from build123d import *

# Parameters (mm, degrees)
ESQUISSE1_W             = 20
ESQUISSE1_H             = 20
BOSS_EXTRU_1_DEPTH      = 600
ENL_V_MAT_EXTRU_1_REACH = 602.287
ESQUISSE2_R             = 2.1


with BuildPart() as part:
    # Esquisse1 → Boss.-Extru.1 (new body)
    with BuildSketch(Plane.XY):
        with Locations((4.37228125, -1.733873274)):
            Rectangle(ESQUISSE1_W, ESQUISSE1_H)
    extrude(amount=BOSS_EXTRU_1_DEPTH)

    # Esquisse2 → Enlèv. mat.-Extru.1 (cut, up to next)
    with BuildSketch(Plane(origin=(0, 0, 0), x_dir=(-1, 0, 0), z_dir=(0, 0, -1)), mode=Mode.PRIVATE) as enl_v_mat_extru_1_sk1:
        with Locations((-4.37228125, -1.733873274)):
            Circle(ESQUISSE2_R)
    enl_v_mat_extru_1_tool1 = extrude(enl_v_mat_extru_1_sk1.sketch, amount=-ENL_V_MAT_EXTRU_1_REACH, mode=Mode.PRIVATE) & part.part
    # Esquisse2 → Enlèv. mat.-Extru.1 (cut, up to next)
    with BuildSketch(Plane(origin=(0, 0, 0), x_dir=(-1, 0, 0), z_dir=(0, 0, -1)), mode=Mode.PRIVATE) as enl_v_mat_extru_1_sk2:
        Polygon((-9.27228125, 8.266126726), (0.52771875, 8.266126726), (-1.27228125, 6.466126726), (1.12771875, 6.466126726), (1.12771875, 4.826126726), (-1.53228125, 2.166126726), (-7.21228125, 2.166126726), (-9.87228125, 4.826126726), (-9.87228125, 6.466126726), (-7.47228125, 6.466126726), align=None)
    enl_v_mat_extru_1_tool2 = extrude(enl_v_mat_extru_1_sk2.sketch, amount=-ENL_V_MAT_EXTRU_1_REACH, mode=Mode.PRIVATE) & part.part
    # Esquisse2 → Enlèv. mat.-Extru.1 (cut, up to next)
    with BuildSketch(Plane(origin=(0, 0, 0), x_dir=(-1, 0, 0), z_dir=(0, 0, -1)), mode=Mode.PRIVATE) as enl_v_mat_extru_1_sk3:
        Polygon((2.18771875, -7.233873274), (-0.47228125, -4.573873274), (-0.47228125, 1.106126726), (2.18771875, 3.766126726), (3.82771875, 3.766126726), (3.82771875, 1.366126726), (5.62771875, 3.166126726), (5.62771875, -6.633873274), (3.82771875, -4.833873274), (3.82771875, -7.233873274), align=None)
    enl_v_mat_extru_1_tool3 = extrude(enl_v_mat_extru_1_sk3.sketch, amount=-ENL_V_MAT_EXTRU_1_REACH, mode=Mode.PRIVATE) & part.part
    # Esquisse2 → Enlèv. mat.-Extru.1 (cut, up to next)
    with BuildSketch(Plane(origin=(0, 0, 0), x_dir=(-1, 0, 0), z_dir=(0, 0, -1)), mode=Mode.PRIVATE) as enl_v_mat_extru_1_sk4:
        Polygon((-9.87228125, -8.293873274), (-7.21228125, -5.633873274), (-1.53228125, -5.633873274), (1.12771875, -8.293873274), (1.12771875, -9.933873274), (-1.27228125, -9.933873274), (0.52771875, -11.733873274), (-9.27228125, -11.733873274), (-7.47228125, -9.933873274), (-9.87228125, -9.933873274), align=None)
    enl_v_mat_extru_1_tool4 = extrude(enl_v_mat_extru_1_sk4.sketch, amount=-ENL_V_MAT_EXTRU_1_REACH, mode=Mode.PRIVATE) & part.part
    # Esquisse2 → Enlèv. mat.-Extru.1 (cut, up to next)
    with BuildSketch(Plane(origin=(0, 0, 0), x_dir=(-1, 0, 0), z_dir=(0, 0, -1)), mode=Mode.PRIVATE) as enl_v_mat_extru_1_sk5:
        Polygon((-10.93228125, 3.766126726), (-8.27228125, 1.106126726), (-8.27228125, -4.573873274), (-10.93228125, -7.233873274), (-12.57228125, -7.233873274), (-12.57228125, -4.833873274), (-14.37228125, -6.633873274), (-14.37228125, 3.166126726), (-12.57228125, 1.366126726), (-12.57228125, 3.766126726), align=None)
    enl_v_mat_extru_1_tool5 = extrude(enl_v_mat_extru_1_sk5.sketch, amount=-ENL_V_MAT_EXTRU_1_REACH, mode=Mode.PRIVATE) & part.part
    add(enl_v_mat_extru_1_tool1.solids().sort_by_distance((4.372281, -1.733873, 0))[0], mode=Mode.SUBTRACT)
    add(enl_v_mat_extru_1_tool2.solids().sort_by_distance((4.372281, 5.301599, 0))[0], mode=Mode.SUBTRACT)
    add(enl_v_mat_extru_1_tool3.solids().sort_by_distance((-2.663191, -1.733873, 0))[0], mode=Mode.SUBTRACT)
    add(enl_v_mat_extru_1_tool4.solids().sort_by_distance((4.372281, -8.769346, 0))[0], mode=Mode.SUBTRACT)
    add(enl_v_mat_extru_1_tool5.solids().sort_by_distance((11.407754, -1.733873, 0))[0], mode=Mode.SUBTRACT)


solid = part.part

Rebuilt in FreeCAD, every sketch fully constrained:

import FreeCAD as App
import Part
import Sketcher


def add_polygon(sketch, points):
    """Adds a closed chain of lines whose ends are joined by coincident constraints."""
    first, n = sketch.GeometryCount, len(points)
    for a, b in zip(points, points[1:] + points[:1]):
        sketch.addGeometry(Part.LineSegment(App.Vector(*a, 0), App.Vector(*b, 0)), False)
    for i in range(n):
        sketch.addConstraint(Sketcher.Constraint("Coincident", first + i, 2, first + (i + 1) % n, 1))

doc = App.newDocument("Part")
body = doc.addObject("PartDesign::Body", "Body")

# Sketch on XY plane
sketch1 = body.newObject("Sketcher::SketchObject", "Sketch")
sketch1.AttachmentSupport = (doc.getObject("XY_Plane"), [""])
sketch1.MapMode = "FlatFace"
add_polygon(sketch1, [(-5.627719, 8.266127), (-5.627719, -11.733873), (14.372281, -11.733873), (14.372281, 8.266127)])  # lines 0-3
sketch1.addConstraint([
    Sketcher.Constraint("Vertical", 0),
    Sketcher.Constraint("Horizontal", 1),
    Sketcher.Constraint("Vertical", 2),
    Sketcher.Constraint("Horizontal", 3),
    Sketcher.Constraint("Equal", 3, 0),
    Sketcher.Constraint("DistanceX", 1, 1, 1, 2, 20.0),
    Sketcher.Constraint("DistanceX", 0, 2, -1, 1, 5.627719),
    Sketcher.Constraint("DistanceY", 0, 2, -1, 1, 11.733873),
])
pad1 = body.newObject("PartDesign::Pad", "Pad")
pad1.Profile = sketch1
pad1.Length = 600

# Sketch on XY plane
sketch2 = body.newObject("Sketcher::SketchObject", "Sketch001")
sketch2.AttachmentSupport = (doc.getObject("XY_Plane"), [""])
sketch2.MapMode = "FlatFace"
sketch2.addGeometry(Part.Circle(App.Vector(4.372281, -1.733873, 0), App.Vector(0, 0, 1), 2.1), False)
sketch2.addConstraint([
    Sketcher.Constraint("Diameter", 0, 4.2),
    Sketcher.Constraint("DistanceX", -1, 1, 0, 3, 4.372281),
    Sketcher.Constraint("DistanceY", 0, 3, -1, 1, 1.733873),
])
pocket1 = body.newObject("PartDesign::Pocket", "Pocket")
pocket1.Profile = sketch2
pocket1.Type = "UpToFirst"
pocket1.Reversed = True

# Sketch on XY plane
sketch3 = body.newObject("Sketcher::SketchObject", "Sketch002")
sketch3.AttachmentSupport = (doc.getObject("XY_Plane"), [""])
sketch3.MapMode = "FlatFace"
add_polygon(sketch3, [(-0.527719, 8.266127), (9.272281, 8.266127), (7.472281, 6.466127), (9.872281, 6.466127), (9.872281, 4.826127), (7.212281, 2.166127), (1.532281, 2.166127), (-1.127719, 4.826127), (-1.127719, 6.466127), (1.272281, 6.466127)])  # lines 0-9
sketch3.addConstraint([
    Sketcher.Constraint("Horizontal", 0),
    Sketcher.Constraint("Horizontal", 2),
    Sketcher.Constraint("Vertical", 3),
    Sketcher.Constraint("Horizontal", 5),
    Sketcher.Constraint("Vertical", 7),
    Sketcher.Constraint("Horizontal", 8),
    Sketcher.Constraint("Parallel", 1, 4),
    Sketcher.Constraint("Perpendicular", 4, 6),
    Sketcher.Constraint("Parallel", 6, 9),
    Sketcher.Constraint("Horizontal", 3, 2, 6, 2),
    Sketcher.Constraint("Horizontal", 2, 2, 7, 2),
    Sketcher.Constraint("Equal", 2, 8),
    Sketcher.Constraint("Equal", 4, 6),
    Sketcher.Constraint("DistanceX", 0, 1, 0, 2, 9.8),
    Sketcher.Constraint("DistanceX", 2, 1, 2, 2, 2.4),
    Sketcher.Constraint("DistanceX", 6, 2, 3, 2, 11.0),
    Sketcher.Constraint("DistanceX", 5, 2, 5, 1, 5.68),
    Sketcher.Constraint("DistanceY", 3, 2, 3, 1, 1.64),
    Sketcher.Constraint("DistanceX", -1, 1, 0, 2, 9.272281),
    Sketcher.Constraint("DistanceY", -1, 1, 0, 2, 8.266127),
])
pocket2 = body.newObject("PartDesign::Pocket", "Pocket001")
pocket2.Profile = sketch3
pocket2.Type = "UpToFirst"
pocket2.Reversed = True

# Sketch on XY plane
sketch4 = body.newObject("Sketcher::SketchObject", "Sketch003")
sketch4.AttachmentSupport = (doc.getObject("XY_Plane"), [""])
sketch4.MapMode = "FlatFace"
add_polygon(sketch4, [(0.472281, -4.573873), (-2.187719, -7.233873), (-3.827719, -7.233873), (-3.827719, -4.833873), (-5.627719, -6.633873), (-5.627719, 3.166127), (-3.827719, 1.366127), (-3.827719, 3.766127), (-2.187719, 3.766127), (0.472281, 1.106127)])  # lines 0-9
sketch4.addConstraint([
    Sketcher.Constraint("Horizontal", 1),
    Sketcher.Constraint("Vertical", 2),
    Sketcher.Constraint("Vertical", 4),
    Sketcher.Constraint("Vertical", 6),
    Sketcher.Constraint("Horizontal", 7),
    Sketcher.Constraint("Vertical", 9),
    Sketcher.Constraint("Parallel", 0, 3),
    Sketcher.Constraint("Perpendicular", 3, 5),
    Sketcher.Constraint("Parallel", 5, 8),
    Sketcher.Constraint("Vertical", 2, 2, 5, 2),
    Sketcher.Constraint("Vertical", 0, 2, 7, 2),
    Sketcher.Constraint("Equal", 2, 6),
    Sketcher.Constraint("Equal", 3, 5),
    Sketcher.Constraint("DistanceY", 2, 1, 2, 2, 2.4),
    Sketcher.Constraint("DistanceY", 4, 1, 4, 2, 9.8),
    Sketcher.Constraint("DistanceY", 2, 2, 4, 2, 8.0),
    Sketcher.Constraint("DistanceX", 1, 2, 1, 1, 1.64),
    Sketcher.Constraint("DistanceY", 9, 2, 9, 1, 5.68),
    Sketcher.Constraint("DistanceX", 0, 2, -1, 1, 2.187719),
    Sketcher.Constraint("DistanceY", 0, 2, -1, 1, 7.233873),
])
pocket3 = body.newObject("PartDesign::Pocket", "Pocket002")
pocket3.Profile = sketch4
pocket3.Type = "UpToFirst"
pocket3.Reversed = True

# Sketch on XY plane
sketch5 = body.newObject("Sketcher::SketchObject", "Sketch004")
sketch5.AttachmentSupport = (doc.getObject("XY_Plane"), [""])
sketch5.MapMode = "FlatFace"
add_polygon(sketch5, [(7.212281, -5.633873), (9.872281, -8.293873), (9.872281, -9.933873), (7.472281, -9.933873), (9.272281, -11.733873), (-0.527719, -11.733873), (1.272281, -9.933873), (-1.127719, -9.933873), (-1.127719, -8.293873), (1.532281, -5.633873)])  # lines 0-9
sketch5.addConstraint([
    Sketcher.Constraint("Vertical", 1),
    Sketcher.Constraint("Horizontal", 2),
    Sketcher.Constraint("Horizontal", 4),
    Sketcher.Constraint("Horizontal", 6),
    Sketcher.Constraint("Vertical", 7),
    Sketcher.Constraint("Horizontal", 9),
    Sketcher.Constraint("Parallel", 0, 3),
    Sketcher.Constraint("Perpendicular", 3, 5),
    Sketcher.Constraint("Parallel", 5, 8),
    Sketcher.Constraint("Horizontal", 2, 2, 5, 2),
    Sketcher.Constraint("Horizontal", 0, 2, 7, 2),
    Sketcher.Constraint("Equal", 2, 6),
    Sketcher.Constraint("Equal", 3, 5),
    Sketcher.Constraint("DistanceX", 2, 2, 2, 1, 2.4),
    Sketcher.Constraint("DistanceX", 4, 2, 4, 1, 9.8),
    Sketcher.Constraint("DistanceX", 4, 2, 2, 2, 8.0),
    Sketcher.Constraint("DistanceX", 9, 1, 9, 2, 5.68),
    Sketcher.Constraint("DistanceY", 1, 2, 1, 1, 1.64),
    Sketcher.Constraint("DistanceX", -1, 1, 0, 2, 9.872281),
    Sketcher.Constraint("DistanceY", 0, 2, -1, 1, 8.293873),
])
pocket4 = body.newObject("PartDesign::Pocket", "Pocket003")
pocket4.Profile = sketch5
pocket4.Type = "UpToFirst"
pocket4.Reversed = True

# Sketch on XY plane
sketch6 = body.newObject("Sketcher::SketchObject", "Sketch005")
sketch6.AttachmentSupport = (doc.getObject("XY_Plane"), [""])
sketch6.MapMode = "FlatFace"
add_polygon(sketch6, [(8.272281, 1.106127), (10.932281, 3.766127), (12.572281, 3.766127), (12.572281, 1.366127), (14.372281, 3.166127), (14.372281, -6.633873), (12.572281, -4.833873), (12.572281, -7.233873), (10.932281, -7.233873), (8.272281, -4.573873)])  # lines 0-9
sketch6.addConstraint([
    Sketcher.Constraint("Horizontal", 1),
    Sketcher.Constraint("Vertical", 2),
    Sketcher.Constraint("Vertical", 4),
    Sketcher.Constraint("Vertical", 6),
    Sketcher.Constraint("Horizontal", 7),
    Sketcher.Constraint("Vertical", 9),
    Sketcher.Constraint("Parallel", 0, 3),
    Sketcher.Constraint("Perpendicular", 3, 5),
    Sketcher.Constraint("Parallel", 5, 8),
    Sketcher.Constraint("Vertical", 2, 2, 5, 2),
    Sketcher.Constraint("Vertical", 0, 2, 7, 2),
    Sketcher.Constraint("Equal", 2, 6),
    Sketcher.Constraint("Equal", 3, 5),
    Sketcher.Constraint("DistanceY", 2, 2, 2, 1, 2.4),
    Sketcher.Constraint("DistanceY", 4, 2, 4, 1, 9.8),
    Sketcher.Constraint("DistanceY", 4, 2, 2, 2, 8.0),
    Sketcher.Constraint("DistanceX", 1, 1, 1, 2, 1.64),
    Sketcher.Constraint("DistanceY", 9, 1, 9, 2, 5.68),
    Sketcher.Constraint("DistanceX", -1, 1, 0, 2, 10.932281),
    Sketcher.Constraint("DistanceY", -1, 1, 0, 2, 3.766127),
])
pocket5 = body.newObject("PartDesign::Pocket", "Pocket004")
pocket5.Profile = sketch6
pocket5.Type = "UpToFirst"
pocket5.Reversed = True

doc.recompute()
